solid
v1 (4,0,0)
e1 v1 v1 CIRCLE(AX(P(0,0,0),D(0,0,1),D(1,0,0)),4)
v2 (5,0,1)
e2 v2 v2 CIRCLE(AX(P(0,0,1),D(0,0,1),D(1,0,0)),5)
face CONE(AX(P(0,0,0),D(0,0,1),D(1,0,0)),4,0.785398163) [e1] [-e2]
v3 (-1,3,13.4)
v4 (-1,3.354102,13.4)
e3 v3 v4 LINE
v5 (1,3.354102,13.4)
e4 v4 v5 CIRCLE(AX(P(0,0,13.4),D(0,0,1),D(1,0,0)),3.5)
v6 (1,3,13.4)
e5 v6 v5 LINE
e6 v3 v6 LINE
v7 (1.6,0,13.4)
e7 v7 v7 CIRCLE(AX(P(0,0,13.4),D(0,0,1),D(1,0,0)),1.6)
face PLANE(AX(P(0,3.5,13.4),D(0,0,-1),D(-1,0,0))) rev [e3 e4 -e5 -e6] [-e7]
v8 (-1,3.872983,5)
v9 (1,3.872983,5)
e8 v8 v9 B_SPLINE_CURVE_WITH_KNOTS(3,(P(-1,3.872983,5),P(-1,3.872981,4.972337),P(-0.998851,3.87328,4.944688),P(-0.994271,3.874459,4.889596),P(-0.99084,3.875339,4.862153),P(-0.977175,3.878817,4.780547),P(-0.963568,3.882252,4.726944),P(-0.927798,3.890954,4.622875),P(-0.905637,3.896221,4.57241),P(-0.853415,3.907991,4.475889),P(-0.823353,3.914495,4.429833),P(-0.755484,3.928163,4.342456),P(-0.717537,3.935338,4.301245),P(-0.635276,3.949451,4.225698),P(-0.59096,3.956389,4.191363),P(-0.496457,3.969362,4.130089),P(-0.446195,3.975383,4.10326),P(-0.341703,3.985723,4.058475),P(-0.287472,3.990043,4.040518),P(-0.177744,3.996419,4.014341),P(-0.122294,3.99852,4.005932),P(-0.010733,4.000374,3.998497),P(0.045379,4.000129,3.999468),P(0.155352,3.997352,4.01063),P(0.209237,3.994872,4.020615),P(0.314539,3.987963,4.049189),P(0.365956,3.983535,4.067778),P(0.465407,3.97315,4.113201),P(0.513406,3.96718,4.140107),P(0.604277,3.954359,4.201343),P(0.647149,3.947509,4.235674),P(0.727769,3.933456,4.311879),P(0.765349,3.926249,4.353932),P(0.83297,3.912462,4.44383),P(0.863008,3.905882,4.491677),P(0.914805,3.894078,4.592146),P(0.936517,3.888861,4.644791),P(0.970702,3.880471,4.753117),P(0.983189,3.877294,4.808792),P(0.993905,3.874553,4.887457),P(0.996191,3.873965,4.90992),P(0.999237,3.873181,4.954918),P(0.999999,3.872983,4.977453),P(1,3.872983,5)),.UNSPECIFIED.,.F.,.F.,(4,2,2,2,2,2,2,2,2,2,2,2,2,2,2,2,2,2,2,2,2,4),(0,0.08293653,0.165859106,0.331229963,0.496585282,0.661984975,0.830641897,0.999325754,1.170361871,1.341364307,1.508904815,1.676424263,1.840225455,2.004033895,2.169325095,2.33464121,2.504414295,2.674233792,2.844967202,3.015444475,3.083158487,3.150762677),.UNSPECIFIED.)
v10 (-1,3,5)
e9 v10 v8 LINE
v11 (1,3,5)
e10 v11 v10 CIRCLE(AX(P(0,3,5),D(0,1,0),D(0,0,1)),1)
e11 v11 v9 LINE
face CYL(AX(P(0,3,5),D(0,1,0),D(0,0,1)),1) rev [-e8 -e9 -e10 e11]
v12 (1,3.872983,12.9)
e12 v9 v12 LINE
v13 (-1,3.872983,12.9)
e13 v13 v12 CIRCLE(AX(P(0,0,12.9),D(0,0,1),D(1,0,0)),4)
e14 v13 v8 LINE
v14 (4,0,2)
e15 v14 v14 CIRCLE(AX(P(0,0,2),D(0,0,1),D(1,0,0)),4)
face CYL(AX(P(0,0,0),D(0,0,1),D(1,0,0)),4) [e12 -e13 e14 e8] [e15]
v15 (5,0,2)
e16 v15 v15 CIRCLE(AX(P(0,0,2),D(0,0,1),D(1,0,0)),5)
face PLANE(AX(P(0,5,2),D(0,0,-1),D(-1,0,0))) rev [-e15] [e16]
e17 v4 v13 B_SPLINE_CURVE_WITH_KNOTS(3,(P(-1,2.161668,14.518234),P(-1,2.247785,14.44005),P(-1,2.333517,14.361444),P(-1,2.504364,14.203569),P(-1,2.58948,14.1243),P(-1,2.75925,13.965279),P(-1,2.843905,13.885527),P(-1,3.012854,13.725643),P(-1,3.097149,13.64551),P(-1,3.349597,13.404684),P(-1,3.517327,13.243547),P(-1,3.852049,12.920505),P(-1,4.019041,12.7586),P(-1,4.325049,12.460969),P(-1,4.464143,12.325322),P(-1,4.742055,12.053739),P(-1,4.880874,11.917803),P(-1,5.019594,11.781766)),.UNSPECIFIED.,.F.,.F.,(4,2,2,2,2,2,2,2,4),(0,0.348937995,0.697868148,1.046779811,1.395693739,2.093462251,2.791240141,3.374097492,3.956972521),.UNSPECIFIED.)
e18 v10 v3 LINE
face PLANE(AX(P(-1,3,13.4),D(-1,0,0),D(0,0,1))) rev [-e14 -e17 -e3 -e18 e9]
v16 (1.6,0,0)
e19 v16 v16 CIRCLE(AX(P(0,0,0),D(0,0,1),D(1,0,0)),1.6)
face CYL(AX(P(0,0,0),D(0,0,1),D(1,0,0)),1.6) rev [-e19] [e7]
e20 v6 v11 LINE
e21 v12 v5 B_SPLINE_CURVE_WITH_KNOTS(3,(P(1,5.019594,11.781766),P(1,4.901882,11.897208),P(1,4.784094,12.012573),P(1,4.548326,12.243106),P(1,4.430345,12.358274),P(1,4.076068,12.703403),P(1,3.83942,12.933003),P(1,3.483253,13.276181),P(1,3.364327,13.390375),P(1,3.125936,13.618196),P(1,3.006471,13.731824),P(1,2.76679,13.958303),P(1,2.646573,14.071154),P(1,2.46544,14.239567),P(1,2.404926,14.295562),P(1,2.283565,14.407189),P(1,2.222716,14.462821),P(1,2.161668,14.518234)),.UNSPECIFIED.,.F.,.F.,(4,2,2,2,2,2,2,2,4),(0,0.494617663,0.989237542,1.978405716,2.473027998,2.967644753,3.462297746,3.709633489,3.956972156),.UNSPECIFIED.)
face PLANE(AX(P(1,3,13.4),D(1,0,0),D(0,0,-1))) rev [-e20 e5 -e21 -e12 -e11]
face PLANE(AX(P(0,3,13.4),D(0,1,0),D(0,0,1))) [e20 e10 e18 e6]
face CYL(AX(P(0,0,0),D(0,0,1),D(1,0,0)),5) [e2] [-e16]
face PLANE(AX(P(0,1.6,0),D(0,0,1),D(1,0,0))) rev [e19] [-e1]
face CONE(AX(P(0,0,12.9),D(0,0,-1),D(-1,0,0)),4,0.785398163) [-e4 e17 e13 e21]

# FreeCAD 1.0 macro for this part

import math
import FreeCAD as App
import Part
import Sketcher

V = App.Vector
Q = App.Units.Quantity


def add_polygon(sketch, points):
    """Adds a closed chain of lines whose ends are joined by coincident constraints."""
    first, n = sketch.GeometryCount, len(points)
    for a, b in zip(points, points[1:] + points[:1]):
        sketch.addGeometry(Part.LineSegment(App.Vector(*a, 0), App.Vector(*b, 0)), False)
    for i in range(n):
        sketch.addConstraint(Sketcher.Constraint("Coincident", first + i, 2, first + (i + 1) % n, 1))

doc = App.newDocument("Part")
body = doc.addObject("PartDesign::Body", "Body")

sketch1 = body.newObject("Sketcher::SketchObject", "Sketch")
sketch1.AttachmentSupport = (doc.getObject("YZ_Plane"), [""])
sketch1.MapMode = "FlatFace"
add_polygon(sketch1, [(1.6, 0), (4, 0), (5, 1), (5, 2), (4, 2), (4, 12.9), (3.5, 13.4), (1.6, 13.4)])
sketch1.addConstraint(Sketcher.Constraint("Horizontal", 0))
sketch1.addConstraint(Sketcher.Constraint("Vertical", 2))
sketch1.addConstraint(Sketcher.Constraint("Horizontal", 3))
sketch1.addConstraint(Sketcher.Constraint("Vertical", 4))
sketch1.addConstraint(Sketcher.Constraint("Horizontal", 6))
sketch1.addConstraint(Sketcher.Constraint("Vertical", 7))
sketch1.addConstraint(Sketcher.Constraint("PointOnObject", 0, 2, -1))
sketch1.addConstraint(Sketcher.Constraint("Perpendicular", 1, 5))
sketch1.addConstraint(Sketcher.Constraint("Vertical", 0, 2, 3, 2))
sketch1.addConstraint(Sketcher.Constraint("Equal", 3, 2))
sketch1.addConstraint(Sketcher.Constraint("DistanceX", 3, 2, 3, 1, 1.0))
sketch1.addConstraint(Sketcher.Constraint("Angle", 1, Q("45 deg")))
sketch1.addConstraint(Sketcher.Constraint("DistanceX", 0, 1, 0, 2, 2.4))
sketch1.addConstraint(Sketcher.Constraint("DistanceX", 6, 2, 6, 1, 1.9))
sketch1.addConstraint(Sketcher.Constraint("DistanceY", 4, 1, 4, 2, 10.9))
sketch1.addConstraint(Sketcher.Constraint("DistanceX", -1, 1, 0, 2, 4.0))
revolution = body.newObject("PartDesign::Revolution", "Revolution")
revolution.Profile = sketch1
revolution.ReferenceAxis = (sketch1, ["V_Axis"])
revolution.Angle = 360

sketch2 = body.newObject("Sketcher::SketchObject", "Sketch001")
sketch2.AttachmentSupport = (doc.getObject("XZ_Plane"), [""])
sketch2.MapMode = "FlatFace"
sketch2.AttachmentOffset = App.Placement(V(0, 0, -4), App.Rotation())
sketch2.addGeometry(Part.LineSegment(V(-1, 5, 0), V(-1, 13.4, 0)), False)
sketch2.addGeometry(Part.ArcOfCircle(Part.Circle(V(0, 13.4, 0), V(0, 0, 1), 1), math.radians(0), math.radians(180)), False)
sketch2.addGeometry(Part.LineSegment(V(1, 13.4, 0), V(1, 5, 0)), False)
sketch2.addGeometry(Part.ArcOfCircle(Part.Circle(V(0, 5, 0), V(0, 0, 1), 1), math.radians(180), math.radians(360)), False)
sketch2.addConstraint(Sketcher.Constraint("Tangent", 0, 2, 1, 2))
sketch2.addConstraint(Sketcher.Constraint("Tangent", 1, 1, 2, 1))
sketch2.addConstraint(Sketcher.Constraint("Tangent", 2, 2, 3, 2))
sketch2.addConstraint(Sketcher.Constraint("Tangent", 3, 1, 0, 1))
sketch2.addConstraint(Sketcher.Constraint("Vertical", 0))
sketch2.addConstraint(Sketcher.Constraint("Vertical", 2))
sketch2.addConstraint(Sketcher.Constraint("PointOnObject", 1, 3, -2))
sketch2.addConstraint(Sketcher.Constraint("Radius", 1, 1.0))
sketch2.addConstraint(Sketcher.Constraint("DistanceY", 0, 1, 0, 2, 8.4))
sketch2.addConstraint(Sketcher.Constraint("DistanceY", -1, 1, 3, 3, 5.0))
pocket1 = body.newObject("PartDesign::Pocket", "Pocket")
pocket1.Profile = sketch2
pocket1.Length = 1
pocket1.Reversed = True

doc.recompute()
